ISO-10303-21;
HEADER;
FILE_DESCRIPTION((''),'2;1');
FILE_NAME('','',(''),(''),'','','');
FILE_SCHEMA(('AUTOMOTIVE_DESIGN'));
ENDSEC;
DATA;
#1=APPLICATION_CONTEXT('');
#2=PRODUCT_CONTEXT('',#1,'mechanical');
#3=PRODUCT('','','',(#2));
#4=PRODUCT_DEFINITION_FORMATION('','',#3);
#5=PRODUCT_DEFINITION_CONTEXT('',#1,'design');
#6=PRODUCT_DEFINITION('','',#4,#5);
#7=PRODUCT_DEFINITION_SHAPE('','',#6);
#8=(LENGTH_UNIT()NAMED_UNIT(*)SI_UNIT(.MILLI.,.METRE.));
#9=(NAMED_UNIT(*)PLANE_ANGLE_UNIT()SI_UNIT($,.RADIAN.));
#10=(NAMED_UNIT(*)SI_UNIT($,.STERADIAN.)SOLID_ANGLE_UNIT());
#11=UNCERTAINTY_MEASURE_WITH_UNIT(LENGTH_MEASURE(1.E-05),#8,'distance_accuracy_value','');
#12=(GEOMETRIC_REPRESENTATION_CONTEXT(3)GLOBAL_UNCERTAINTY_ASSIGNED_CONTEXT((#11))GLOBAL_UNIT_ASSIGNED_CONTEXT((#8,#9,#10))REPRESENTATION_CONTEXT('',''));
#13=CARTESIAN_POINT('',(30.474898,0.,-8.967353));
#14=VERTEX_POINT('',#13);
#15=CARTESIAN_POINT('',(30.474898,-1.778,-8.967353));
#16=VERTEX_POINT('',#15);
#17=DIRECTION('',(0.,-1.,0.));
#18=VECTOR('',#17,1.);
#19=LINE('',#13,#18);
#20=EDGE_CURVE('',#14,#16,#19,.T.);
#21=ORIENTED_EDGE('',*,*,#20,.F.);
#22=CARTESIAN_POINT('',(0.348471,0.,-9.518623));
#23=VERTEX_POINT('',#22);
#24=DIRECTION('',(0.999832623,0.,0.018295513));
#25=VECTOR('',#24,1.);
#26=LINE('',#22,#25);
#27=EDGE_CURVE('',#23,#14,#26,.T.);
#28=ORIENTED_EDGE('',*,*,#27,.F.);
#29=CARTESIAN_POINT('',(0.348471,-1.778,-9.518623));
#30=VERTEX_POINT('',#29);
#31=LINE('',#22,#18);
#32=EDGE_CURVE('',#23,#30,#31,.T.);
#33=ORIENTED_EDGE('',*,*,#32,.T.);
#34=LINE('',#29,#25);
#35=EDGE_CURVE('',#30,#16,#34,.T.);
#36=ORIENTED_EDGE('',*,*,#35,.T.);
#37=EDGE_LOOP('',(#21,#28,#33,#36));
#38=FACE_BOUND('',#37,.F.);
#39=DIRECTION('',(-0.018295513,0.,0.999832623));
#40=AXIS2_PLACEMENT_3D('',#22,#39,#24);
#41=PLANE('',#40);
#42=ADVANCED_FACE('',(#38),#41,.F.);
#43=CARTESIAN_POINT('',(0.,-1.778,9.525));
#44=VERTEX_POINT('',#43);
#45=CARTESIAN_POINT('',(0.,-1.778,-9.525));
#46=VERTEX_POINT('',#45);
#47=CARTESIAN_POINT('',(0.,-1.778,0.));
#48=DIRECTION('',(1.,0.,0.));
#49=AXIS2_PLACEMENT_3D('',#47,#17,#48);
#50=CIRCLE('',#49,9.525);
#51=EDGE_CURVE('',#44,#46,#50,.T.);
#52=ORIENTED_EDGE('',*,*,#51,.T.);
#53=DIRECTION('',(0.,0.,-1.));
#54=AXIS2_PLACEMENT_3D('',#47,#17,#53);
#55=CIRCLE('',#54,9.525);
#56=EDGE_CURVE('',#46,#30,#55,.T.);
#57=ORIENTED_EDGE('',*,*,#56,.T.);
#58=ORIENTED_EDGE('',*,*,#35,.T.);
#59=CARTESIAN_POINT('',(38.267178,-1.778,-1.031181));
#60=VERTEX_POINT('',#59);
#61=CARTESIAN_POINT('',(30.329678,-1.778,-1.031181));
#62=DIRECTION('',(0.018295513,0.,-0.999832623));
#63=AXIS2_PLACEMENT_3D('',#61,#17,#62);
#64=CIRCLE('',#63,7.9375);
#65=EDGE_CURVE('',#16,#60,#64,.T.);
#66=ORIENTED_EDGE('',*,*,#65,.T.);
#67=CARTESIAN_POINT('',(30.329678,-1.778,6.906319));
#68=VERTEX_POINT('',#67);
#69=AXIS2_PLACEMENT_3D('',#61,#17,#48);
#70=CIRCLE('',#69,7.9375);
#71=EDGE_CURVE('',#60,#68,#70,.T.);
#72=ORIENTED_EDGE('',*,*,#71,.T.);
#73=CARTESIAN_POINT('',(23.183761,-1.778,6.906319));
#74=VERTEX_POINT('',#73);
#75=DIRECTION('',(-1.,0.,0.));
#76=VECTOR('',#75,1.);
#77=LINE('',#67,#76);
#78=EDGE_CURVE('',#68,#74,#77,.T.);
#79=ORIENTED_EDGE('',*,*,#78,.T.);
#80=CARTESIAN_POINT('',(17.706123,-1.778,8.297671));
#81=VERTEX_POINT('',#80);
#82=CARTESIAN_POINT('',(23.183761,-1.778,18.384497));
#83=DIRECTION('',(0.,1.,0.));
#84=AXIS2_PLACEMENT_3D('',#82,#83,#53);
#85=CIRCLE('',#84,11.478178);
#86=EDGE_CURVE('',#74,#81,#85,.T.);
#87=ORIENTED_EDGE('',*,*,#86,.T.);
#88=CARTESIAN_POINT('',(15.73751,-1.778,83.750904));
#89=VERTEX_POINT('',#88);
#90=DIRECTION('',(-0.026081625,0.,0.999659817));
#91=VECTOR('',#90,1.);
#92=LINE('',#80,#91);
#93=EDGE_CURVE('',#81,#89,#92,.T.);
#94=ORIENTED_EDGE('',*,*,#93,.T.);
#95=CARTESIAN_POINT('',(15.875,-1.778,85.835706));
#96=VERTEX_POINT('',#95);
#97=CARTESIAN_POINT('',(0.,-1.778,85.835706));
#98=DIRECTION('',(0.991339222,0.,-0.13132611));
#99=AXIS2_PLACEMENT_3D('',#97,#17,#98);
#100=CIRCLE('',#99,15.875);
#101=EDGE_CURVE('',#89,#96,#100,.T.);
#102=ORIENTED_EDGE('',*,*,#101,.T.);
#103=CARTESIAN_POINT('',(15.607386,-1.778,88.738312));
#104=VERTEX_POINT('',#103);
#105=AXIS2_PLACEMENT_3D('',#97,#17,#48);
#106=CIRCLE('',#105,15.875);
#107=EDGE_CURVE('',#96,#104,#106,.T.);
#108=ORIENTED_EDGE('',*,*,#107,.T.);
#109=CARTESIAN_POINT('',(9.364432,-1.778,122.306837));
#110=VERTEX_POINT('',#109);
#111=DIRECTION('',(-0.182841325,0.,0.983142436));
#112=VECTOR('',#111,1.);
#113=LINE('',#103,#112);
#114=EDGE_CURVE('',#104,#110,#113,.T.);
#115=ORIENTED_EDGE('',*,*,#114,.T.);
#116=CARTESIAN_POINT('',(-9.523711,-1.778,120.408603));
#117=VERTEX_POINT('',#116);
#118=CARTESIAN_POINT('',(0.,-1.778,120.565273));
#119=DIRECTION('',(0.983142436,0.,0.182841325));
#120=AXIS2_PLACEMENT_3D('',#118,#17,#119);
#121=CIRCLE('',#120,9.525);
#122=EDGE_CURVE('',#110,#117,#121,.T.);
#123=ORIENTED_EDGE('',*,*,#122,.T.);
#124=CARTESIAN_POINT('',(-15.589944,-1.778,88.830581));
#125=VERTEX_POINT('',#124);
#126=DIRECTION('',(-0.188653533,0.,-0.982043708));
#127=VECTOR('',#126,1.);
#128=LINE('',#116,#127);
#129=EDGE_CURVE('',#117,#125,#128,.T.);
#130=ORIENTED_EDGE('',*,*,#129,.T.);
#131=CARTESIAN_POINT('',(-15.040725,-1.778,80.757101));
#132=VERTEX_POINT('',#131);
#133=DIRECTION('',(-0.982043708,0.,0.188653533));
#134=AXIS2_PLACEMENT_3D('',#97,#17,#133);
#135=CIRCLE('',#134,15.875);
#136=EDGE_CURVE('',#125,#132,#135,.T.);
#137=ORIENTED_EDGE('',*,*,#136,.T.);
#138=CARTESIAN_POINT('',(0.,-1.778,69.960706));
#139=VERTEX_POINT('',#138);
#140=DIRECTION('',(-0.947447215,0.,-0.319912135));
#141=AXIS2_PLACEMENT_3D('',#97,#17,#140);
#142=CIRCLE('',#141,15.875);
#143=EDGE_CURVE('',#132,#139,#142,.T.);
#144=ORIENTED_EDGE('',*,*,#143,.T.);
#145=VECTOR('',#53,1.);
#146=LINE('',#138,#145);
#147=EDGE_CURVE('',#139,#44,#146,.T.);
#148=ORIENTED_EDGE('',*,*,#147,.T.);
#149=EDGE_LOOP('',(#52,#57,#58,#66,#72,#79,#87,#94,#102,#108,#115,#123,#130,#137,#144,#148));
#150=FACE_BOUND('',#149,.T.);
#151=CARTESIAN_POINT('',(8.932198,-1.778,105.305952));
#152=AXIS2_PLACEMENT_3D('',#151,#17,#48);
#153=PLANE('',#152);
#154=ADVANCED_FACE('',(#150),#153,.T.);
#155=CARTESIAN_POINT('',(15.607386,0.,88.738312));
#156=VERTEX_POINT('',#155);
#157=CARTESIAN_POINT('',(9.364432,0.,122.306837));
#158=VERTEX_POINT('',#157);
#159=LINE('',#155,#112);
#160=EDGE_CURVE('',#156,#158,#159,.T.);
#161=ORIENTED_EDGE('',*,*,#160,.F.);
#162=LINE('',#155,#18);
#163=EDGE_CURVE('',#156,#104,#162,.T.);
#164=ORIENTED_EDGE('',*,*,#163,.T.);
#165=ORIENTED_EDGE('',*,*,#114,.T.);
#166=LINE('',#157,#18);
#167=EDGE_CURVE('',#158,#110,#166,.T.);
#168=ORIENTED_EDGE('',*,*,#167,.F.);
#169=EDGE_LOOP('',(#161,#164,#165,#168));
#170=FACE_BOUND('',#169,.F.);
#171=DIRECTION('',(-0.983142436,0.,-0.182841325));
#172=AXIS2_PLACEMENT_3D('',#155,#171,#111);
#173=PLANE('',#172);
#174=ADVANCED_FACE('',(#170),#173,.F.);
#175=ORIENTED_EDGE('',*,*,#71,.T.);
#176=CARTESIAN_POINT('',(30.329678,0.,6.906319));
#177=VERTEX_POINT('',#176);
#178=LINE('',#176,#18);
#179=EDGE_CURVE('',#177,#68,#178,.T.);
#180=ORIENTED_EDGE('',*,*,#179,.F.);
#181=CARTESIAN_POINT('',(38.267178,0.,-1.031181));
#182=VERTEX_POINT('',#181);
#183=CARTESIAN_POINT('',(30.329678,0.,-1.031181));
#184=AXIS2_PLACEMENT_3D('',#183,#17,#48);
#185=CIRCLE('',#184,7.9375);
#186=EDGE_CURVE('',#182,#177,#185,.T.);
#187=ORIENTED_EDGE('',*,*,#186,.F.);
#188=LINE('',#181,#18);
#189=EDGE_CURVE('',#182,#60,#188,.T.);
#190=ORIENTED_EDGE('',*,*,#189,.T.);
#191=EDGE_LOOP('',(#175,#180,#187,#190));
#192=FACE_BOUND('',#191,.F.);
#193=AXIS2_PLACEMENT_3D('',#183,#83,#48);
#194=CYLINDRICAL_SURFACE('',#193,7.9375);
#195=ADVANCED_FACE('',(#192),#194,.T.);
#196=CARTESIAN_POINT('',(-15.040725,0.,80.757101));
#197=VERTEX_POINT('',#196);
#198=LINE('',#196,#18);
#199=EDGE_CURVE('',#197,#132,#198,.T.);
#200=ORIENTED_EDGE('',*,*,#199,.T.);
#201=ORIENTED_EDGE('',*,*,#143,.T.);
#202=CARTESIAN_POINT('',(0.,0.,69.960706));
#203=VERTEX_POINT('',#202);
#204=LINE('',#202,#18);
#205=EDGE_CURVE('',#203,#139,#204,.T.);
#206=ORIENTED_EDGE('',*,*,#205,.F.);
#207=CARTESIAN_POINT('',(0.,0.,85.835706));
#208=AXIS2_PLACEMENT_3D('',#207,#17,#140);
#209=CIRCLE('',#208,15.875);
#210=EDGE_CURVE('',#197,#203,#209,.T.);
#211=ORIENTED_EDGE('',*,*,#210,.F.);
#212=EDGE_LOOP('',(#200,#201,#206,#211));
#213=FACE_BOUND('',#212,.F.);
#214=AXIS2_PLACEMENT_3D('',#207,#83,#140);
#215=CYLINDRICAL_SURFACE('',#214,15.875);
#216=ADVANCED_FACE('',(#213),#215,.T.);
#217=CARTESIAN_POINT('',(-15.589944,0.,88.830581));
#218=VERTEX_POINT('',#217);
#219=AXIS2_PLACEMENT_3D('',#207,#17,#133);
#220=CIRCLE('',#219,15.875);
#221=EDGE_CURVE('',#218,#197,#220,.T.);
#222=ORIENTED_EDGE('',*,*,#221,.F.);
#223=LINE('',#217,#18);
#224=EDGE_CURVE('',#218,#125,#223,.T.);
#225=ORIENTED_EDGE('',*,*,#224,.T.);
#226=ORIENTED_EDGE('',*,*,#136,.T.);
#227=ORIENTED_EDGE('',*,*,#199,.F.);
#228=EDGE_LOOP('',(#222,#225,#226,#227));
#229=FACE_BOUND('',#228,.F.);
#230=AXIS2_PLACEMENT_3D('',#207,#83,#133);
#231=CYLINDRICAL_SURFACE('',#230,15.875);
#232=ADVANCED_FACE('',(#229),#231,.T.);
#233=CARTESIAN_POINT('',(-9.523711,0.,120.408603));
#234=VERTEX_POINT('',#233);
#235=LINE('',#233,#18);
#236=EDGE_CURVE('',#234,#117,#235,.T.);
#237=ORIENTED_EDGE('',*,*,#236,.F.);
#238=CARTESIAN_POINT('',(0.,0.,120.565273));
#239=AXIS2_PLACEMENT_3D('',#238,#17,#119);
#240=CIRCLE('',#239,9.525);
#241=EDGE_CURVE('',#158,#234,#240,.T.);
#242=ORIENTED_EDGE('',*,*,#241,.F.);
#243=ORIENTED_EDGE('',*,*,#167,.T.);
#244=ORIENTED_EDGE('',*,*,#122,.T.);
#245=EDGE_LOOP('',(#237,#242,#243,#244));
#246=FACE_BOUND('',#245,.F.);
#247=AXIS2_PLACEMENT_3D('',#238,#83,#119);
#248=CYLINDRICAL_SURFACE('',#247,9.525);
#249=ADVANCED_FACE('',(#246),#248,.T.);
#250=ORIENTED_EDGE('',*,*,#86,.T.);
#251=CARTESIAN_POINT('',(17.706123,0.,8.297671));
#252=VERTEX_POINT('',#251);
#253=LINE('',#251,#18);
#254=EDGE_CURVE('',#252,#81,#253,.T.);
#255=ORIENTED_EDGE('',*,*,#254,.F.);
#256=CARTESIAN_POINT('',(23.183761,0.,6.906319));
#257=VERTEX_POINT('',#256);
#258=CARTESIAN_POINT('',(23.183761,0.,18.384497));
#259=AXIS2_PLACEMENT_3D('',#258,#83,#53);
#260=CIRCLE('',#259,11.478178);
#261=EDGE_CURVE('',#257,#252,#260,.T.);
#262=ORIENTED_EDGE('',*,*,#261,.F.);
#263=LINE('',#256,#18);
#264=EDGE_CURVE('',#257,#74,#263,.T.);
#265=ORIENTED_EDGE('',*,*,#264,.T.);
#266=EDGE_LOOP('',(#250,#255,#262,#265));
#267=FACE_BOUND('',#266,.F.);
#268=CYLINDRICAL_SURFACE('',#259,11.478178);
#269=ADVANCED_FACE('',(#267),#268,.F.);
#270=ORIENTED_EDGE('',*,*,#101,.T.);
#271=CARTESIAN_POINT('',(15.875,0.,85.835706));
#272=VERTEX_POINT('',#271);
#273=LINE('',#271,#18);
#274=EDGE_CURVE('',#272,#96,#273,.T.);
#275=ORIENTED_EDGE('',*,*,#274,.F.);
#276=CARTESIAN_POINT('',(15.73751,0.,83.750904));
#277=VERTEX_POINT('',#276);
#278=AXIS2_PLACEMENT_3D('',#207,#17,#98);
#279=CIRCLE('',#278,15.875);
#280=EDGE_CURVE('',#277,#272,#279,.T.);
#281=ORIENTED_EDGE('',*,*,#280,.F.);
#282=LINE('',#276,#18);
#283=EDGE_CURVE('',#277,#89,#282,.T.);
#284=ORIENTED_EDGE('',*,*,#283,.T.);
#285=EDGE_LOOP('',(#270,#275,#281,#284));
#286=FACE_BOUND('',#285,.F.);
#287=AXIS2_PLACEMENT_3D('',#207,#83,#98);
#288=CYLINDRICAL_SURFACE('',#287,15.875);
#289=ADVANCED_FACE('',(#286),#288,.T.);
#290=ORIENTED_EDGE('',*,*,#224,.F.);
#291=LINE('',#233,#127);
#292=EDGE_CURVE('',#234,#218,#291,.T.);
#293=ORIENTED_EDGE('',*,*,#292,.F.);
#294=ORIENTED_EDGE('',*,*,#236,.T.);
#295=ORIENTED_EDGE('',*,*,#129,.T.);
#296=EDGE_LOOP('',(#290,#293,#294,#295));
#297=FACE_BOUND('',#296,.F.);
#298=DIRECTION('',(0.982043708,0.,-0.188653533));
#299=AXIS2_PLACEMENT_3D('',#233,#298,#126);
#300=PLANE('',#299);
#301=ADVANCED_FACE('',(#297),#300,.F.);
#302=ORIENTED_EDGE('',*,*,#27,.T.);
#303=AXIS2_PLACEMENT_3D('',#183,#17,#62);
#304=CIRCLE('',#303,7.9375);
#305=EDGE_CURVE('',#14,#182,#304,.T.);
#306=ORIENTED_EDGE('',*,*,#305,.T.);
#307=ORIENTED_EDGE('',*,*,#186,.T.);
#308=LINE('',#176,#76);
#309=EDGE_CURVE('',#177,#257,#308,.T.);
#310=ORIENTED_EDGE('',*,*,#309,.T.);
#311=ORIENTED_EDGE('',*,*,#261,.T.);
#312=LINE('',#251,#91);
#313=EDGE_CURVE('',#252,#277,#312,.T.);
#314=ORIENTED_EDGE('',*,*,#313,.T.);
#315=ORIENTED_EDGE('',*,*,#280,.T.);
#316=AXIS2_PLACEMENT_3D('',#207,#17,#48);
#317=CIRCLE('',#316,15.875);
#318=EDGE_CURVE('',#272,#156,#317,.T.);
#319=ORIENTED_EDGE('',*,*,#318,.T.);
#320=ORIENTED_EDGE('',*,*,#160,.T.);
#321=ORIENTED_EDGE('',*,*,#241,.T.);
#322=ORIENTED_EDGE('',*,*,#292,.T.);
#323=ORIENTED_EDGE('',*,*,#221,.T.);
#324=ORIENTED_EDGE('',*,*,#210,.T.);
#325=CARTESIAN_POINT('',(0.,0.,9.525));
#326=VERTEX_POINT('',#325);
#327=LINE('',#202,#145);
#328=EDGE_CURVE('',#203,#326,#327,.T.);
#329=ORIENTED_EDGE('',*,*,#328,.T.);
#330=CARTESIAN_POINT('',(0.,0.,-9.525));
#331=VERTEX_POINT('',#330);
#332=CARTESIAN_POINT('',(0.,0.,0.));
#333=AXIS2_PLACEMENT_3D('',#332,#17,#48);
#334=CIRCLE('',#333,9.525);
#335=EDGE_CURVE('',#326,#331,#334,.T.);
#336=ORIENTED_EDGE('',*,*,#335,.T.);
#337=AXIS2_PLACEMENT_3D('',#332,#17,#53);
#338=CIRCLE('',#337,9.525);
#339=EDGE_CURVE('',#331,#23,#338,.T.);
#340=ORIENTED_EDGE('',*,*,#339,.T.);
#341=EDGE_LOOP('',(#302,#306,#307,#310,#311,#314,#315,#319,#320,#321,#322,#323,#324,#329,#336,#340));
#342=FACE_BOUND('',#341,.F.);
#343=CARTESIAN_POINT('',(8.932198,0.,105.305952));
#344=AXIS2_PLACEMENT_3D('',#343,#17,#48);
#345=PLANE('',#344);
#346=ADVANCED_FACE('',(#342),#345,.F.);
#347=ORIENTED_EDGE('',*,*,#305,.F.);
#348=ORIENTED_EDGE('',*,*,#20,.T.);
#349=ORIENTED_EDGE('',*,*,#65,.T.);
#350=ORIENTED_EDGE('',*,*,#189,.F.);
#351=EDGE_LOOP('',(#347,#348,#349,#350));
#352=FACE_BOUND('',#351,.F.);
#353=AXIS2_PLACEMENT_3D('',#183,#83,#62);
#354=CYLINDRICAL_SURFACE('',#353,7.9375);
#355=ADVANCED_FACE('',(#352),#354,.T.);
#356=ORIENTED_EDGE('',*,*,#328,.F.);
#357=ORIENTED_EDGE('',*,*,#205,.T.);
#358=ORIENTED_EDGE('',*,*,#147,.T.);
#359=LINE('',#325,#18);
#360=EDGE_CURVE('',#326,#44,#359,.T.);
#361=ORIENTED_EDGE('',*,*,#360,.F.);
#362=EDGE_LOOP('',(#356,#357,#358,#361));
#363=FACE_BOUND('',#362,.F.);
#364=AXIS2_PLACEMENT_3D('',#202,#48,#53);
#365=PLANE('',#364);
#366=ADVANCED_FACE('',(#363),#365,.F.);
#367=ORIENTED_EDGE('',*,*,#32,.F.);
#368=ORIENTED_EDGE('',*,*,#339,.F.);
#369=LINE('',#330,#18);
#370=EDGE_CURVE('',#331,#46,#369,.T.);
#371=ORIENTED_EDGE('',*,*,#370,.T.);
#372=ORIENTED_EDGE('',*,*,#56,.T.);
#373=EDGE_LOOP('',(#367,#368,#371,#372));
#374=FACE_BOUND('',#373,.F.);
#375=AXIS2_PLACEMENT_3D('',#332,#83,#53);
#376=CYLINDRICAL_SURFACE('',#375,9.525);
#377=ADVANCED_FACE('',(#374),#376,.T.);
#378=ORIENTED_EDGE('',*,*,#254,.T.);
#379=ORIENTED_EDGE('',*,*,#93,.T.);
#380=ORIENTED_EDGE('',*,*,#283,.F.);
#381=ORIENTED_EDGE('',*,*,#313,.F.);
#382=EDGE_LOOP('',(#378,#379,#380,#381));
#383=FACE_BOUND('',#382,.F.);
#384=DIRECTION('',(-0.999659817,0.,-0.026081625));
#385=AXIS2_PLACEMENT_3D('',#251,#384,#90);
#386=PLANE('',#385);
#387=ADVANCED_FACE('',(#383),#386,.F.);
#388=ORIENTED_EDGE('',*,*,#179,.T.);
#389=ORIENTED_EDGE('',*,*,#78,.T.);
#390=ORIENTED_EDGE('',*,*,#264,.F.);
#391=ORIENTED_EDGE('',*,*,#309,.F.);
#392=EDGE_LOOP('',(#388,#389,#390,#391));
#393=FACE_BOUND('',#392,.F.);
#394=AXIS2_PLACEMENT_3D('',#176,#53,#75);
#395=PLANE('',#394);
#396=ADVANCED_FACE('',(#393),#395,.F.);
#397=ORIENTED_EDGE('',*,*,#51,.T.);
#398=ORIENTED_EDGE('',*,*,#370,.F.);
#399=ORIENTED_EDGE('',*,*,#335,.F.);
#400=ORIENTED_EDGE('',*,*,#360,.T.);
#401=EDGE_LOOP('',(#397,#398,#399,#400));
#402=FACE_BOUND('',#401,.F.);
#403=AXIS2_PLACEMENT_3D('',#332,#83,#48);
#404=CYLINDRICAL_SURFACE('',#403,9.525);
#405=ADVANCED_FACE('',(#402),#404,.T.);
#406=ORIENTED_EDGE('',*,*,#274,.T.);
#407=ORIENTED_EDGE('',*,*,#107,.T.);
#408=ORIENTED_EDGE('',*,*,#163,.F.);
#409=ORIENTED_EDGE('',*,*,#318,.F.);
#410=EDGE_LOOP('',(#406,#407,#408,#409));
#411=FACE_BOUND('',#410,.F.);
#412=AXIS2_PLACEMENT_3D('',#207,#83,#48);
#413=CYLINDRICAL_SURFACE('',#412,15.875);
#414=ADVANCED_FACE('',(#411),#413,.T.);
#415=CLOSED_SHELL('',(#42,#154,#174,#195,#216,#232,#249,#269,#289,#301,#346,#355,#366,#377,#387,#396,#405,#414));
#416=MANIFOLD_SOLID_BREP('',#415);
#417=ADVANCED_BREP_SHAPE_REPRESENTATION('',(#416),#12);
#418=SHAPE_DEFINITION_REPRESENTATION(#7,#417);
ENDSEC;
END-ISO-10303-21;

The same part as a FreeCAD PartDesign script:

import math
import FreeCAD as App
import Part
import Sketcher
from FreeCAD import Vector
Q = App.Units.Quantity

doc = App.newDocument("Part")
params = doc.addObject("Spreadsheet::Sheet", "Params")
for row, (alias, value) in enumerate([
    ("sketch1_radius", "0.625 in"),
    ("sketch1_radius2", "0.375 in"),
    ("sketch1_radius3", "0.3125 in"),
    ("pad1_length", "0.07 in"),
], start=1):
    params.set(f"A{row}", alias)
    params.set(f"B{row}", "=" + value)
    params.setAlias(f"B{row}", alias)

body = doc.addObject("PartDesign::Body", "Body")

# Sketch on XZ plane
sketch1 = body.newObject("Sketcher::SketchObject", "Sketch")
sketch1.AttachmentSupport = (doc.getObject("XZ_Plane"), [""])
sketch1.MapMode = "FlatFace"
sketch1.addGeometry([
    Part.LineSegment(Vector(-9.52, 120.41, 0), Vector(-15.59, 88.83, 0)),  # 0
    Part.ArcOfCircle(Part.Circle(Vector(0, 85.84, 0), Vector(0, 0, 1), 15.88), math.radians(169), math.radians(199)),  # 1
    Part.ArcOfCircle(Part.Circle(Vector(0, 85.84, 0), Vector(0, 0, 1), 15.88), math.radians(-161), math.radians(-90)),  # 2
    Part.LineSegment(Vector(0, 69.96, 0), Vector(0, 9.53, 0)),  # 3
    Part.ArcOfCircle(Part.Circle(Vector(0, 0, 0), Vector(0, 0, 1), 9.53), math.radians(90), math.radians(270)),  # 4
    Part.ArcOfCircle(Part.Circle(Vector(0, 0, 0), Vector(0, 0, 1), 9.52), math.radians(-90), math.radians(-87.9)),  # 5
    Part.LineSegment(Vector(0.35, -9.52, 0), Vector(30.47, -8.97, 0)),  # 6
    Part.ArcOfCircle(Part.Circle(Vector(30.33, -1.03, 0), Vector(0, 0, 1), 7.94), math.radians(-89), math.radians(0)),  # 7
    Part.ArcOfCircle(Part.Circle(Vector(30.33, -1.03, 0), Vector(0, 0, 1), 7.94), math.radians(0), math.radians(90)),  # 8
    Part.LineSegment(Vector(30.33, 6.91, 0), Vector(23.18, 6.91, 0)),  # 9
    Part.ArcOfCircle(Part.Circle(Vector(23.18, 18.38, 0), Vector(0, 0, 1), 11.48), math.radians(-119), math.radians(-90)),  # 10
    Part.LineSegment(Vector(17.71, 8.3, 0), Vector(15.74, 83.75, 0)),  # 11
    Part.ArcOfCircle(Part.Circle(Vector(0, 85.84, 0), Vector(0, 0, 1), 15.88), math.radians(-7.55), math.radians(0)),  # 12
    Part.ArcOfCircle(Part.Circle(Vector(0, 85.84, 0), Vector(0, 0, 1), 15.87), math.radians(0), math.radians(10.54)),  # 13
    Part.LineSegment(Vector(15.61, 88.74, 0), Vector(9.36, 122.31, 0)),  # 14
    Part.ArcOfCircle(Part.Circle(Vector(0, 120.57, 0), Vector(0, 0, 1), 9.53), math.radians(11), math.radians(181)),  # 15
], False)
sketch1.addConstraint([
    Sketcher.Constraint("Tangent", 0, 2, 1, 1),
    Sketcher.Constraint("Tangent", 1, 2, 2, 1),
    Sketcher.Constraint("Coincident", 2, 2, 3, 1),
    Sketcher.Constraint("Coincident", 3, 2, 4, 1),
    Sketcher.Constraint("Tangent", 4, 2, 5, 1),
    Sketcher.Constraint("Coincident", 5, 2, 6, 1),
    Sketcher.Constraint("Tangent", 6, 2, 7, 1),
    Sketcher.Constraint("Tangent", 7, 2, 8, 1),
    Sketcher.Constraint("Tangent", 8, 2, 9, 1),
    Sketcher.Constraint("Tangent", 9, 2, 10, 2),
    Sketcher.Constraint("Coincident", 10, 1, 11, 1),
    Sketcher.Constraint("Coincident", 11, 2, 12, 1),
    Sketcher.Constraint("Tangent", 12, 2, 13, 1),
    Sketcher.Constraint("Tangent", 13, 2, 14, 1),
    Sketcher.Constraint("Tangent", 14, 2, 15, 1),
    Sketcher.Constraint("Coincident", 15, 2, 0, 1),
    Sketcher.Constraint("Vertical", 3),
    Sketcher.Constraint("Horizontal", 9),
    Sketcher.Constraint("Coincident", 4, 3, -1, 1),
    Sketcher.Constraint("Coincident", 12, 3, 1, 3),
    Sketcher.Constraint("Equal", 1, 2),
    Sketcher.Constraint("Equal", 4, 5),
    Sketcher.Constraint("Equal", 7, 8),
    Sketcher.Constraint("Equal", 2, 12),
    Sketcher.Constraint("Equal", 12, 13),
    Sketcher.Constraint("Equal", 5, 15),
    Sketcher.Constraint("PointOnObject", 1, 3, -2),
    Sketcher.Constraint("PointOnObject", 15, 3, -2),
    Sketcher.Constraint("PointOnObject", 2, 2, -2),
    Sketcher.Constraint("PointOnObject", 4, 2, -2),
    Sketcher.Constraint("Horizontal", 8, 3, 7, 2),
    Sketcher.Constraint("Horizontal", 13, 3, 12, 2),
    Sketcher.Constraint("Radius", 1, Q("0.625 in")),
    Sketcher.Constraint("Radius", 4, Q("0.375 in")),
    Sketcher.Constraint("Radius", 7, Q("0.3125 in")),
    Sketcher.Constraint("Radius", 10, 11.478178),
    Sketcher.Constraint("DistanceY", -1, 1, 1, 2, 80.757101),
    Sketcher.Constraint("DistanceX", -1, 1, 6, 2, 30.474898),
    Sketcher.Constraint("Distance", 6, 30.13147),
    Sketcher.Constraint("Distance", 11, 75.47891),
    Sketcher.Constraint("Distance", 14, 34.144111),
    Sketcher.Constraint("DistanceX", 9, 2, 9, 1, 7.145917),
    Sketcher.Constraint("DistanceY", 3, 2, 3, 1, 60.435706),
    Sketcher.Constraint("DistanceY", 7, 3, -1, 1, 1.031181),
    Sketcher.Constraint("DistanceY", -1, 1, 0, 2, 88.830581),
    Sketcher.Constraint("DistanceY", -1, 1, 10, 1, 8.297671),
])
sketch1.setExpression("Constraints[32]", "Params.sketch1_radius")
sketch1.setExpression("Constraints[33]", "Params.sketch1_radius2")
sketch1.setExpression("Constraints[34]", "Params.sketch1_radius3")
pad1 = body.newObject("PartDesign::Pad", "Pad")
pad1.Profile = sketch1
pad1.setExpression("Length", "Params.pad1_length")

doc.recompute()
